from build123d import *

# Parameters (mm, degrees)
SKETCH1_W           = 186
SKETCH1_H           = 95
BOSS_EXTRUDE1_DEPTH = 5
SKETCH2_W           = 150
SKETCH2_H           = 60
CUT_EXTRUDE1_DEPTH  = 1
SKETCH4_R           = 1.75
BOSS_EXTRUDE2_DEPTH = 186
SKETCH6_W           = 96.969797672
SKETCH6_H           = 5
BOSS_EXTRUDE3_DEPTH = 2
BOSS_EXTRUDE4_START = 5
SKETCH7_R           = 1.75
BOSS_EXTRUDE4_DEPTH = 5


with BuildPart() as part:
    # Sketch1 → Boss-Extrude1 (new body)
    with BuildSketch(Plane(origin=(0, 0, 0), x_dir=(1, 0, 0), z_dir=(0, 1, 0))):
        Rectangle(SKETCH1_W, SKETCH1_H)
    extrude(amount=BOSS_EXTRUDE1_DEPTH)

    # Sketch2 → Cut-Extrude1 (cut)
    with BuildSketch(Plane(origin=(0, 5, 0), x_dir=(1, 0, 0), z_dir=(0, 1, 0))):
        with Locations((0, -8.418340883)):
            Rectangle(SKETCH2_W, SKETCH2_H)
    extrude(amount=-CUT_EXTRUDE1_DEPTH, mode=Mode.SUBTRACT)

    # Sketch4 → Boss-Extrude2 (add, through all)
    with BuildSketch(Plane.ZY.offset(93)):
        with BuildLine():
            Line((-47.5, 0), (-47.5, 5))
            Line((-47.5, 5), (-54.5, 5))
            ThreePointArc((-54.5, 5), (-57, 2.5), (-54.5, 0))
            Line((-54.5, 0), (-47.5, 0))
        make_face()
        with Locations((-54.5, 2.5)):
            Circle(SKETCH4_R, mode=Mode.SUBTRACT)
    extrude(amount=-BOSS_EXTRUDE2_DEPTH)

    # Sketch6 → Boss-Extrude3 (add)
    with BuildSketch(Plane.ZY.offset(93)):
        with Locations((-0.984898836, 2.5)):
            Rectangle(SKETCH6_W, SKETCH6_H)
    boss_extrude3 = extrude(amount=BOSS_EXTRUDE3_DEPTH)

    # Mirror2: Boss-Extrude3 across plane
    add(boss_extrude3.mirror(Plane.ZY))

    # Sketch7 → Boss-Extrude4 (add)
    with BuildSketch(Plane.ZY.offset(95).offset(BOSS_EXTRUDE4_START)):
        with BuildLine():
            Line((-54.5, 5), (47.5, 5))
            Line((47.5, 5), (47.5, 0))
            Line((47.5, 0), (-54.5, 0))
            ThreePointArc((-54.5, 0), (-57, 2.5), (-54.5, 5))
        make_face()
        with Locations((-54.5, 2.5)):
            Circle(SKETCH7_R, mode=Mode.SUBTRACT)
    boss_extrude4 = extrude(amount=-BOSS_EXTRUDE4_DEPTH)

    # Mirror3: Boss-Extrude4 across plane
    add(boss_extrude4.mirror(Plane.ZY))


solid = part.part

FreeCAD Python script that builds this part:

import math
import FreeCAD as App
import Part
import Sketcher

V = App.Vector


def add_polygon(sketch, points):
    """Adds a closed chain of lines whose ends are joined by coincident constraints."""
    first, n = sketch.GeometryCount, len(points)
    for a, b in zip(points, points[1:] + points[:1]):
        sketch.addGeometry(Part.LineSegment(App.Vector(*a, 0), App.Vector(*b, 0)), False)
    for i in range(n):
        sketch.addConstraint(Sketcher.Constraint("Coincident", first + i, 2, first + (i + 1) % n, 1))

doc = App.newDocument("Part")
body = doc.addObject("PartDesign::Body", "Body")

# Sketch on XZ plane
sketch1 = body.newObject("Sketcher::SketchObject", "Sketch")
sketch1.AttachmentSupport = (doc.getObject("XZ_Plane"), [""])
sketch1.MapMode = "FlatFace"
add_polygon(sketch1, [(-93, -48), (-93, 48), (93, 48), (93, -48)])  # lines 0-3
sketch1.addConstraint([
    Sketcher.Constraint("Vertical", 0),
    Sketcher.Constraint("Horizontal", 1),
    Sketcher.Constraint("Vertical", 2),
    Sketcher.Constraint("Horizontal", 3),
    Sketcher.Constraint("Symmetric", 0, 2, 2, 2, -1, 1),
    Sketcher.Constraint("DistanceX", 1, 1, 1, 2, 186.0),
    Sketcher.Constraint("DistanceY", 0, 1, 0, 2, 95.0),
])
pad1 = body.newObject("PartDesign::Pad", "Pad")
pad1.Profile = sketch1
pad1.Length = 5
pad1.Reversed = True

# Sketch on XZ plane
sketch2 = body.newObject("Sketcher::SketchObject", "Sketch001")
sketch2.AttachmentSupport = (doc.getObject("XZ_Plane"), [""])
sketch2.MapMode = "FlatFace"
sketch2.AttachmentOffset = App.Placement(V(0, 0, -5), App.Rotation())
add_polygon(sketch2, [(-75, -22), (-75, 38), (75, 38), (75, -22)])  # lines 0-3
sketch2.addConstraint([
    Sketcher.Constraint("Vertical", 0),
    Sketcher.Constraint("Horizontal", 1),
    Sketcher.Constraint("Vertical", 2),
    Sketcher.Constraint("Horizontal", 3),
    Sketcher.Constraint("DistanceX", 1, 1, 1, 2, 150.0),
    Sketcher.Constraint("DistanceY", 0, 1, 0, 2, 60.0),
    Sketcher.Constraint("DistanceX", 0, 2, -1, 1, 75.0),
    Sketcher.Constraint("DistanceY", -1, 1, 0, 2, 38.418341),
])
pocket1 = body.newObject("PartDesign::Pocket", "Pocket")
pocket1.Profile = sketch2
pocket1.Length = 1
pocket1.Reversed = True

# Sketch on YZ plane
sketch3 = body.newObject("Sketcher::SketchObject", "Sketch002")
sketch3.AttachmentSupport = (doc.getObject("YZ_Plane"), [""])
sketch3.MapMode = "FlatFace"
sketch3.AttachmentOffset = App.Placement(V(0, 0, -93), App.Rotation())
sketch3.addGeometry([
    Part.LineSegment(V(0, -47.5, 0), V(5, -47.5, 0)),  # 0
    Part.LineSegment(V(5, -47.5, 0), V(5, -54.5, 0)),  # 1
    Part.ArcOfCircle(Part.Circle(V(2.5, -54.5, 0), V(0, 0, 1), 2.5), math.radians(180), math.radians(360)),  # 2
    Part.LineSegment(V(0, -54.5, 0), V(0, -47.5, 0)),  # 3
    Part.Circle(V(2.5, -54.5, 0), V(0, 0, 1), 1.8),  # 4
], False)
sketch3.addConstraint([
    Sketcher.Constraint("Coincident", 0, 2, 1, 1),
    Sketcher.Constraint("Tangent", 1, 2, 2, 2),
    Sketcher.Constraint("Tangent", 2, 1, 3, 1),
    Sketcher.Constraint("Coincident", 3, 2, 0, 1),
    Sketcher.Constraint("Horizontal", 0),
    Sketcher.Constraint("Vertical", 1),
    Sketcher.Constraint("Vertical", 3),
    Sketcher.Constraint("Coincident", 4, 3, 2, 3),
    Sketcher.Constraint("PointOnObject", 2, 1, -2),
    Sketcher.Constraint("Diameter", 4, 3.5),
    Sketcher.Constraint("Radius", 2, 2.5),
    Sketcher.Constraint("DistanceY", 1, 2, 1, 1, 7.0),
    Sketcher.Constraint("DistanceY", 2, 3, -1, 1, 54.5),
])
pad2 = body.newObject("PartDesign::Pad", "Pad001")
pad2.Profile = sketch3
pad2.Length = 186

# Sketch on YZ plane
sketch4 = body.newObject("Sketcher::SketchObject", "Sketch003")
sketch4.AttachmentSupport = (doc.getObject("YZ_Plane"), [""])
sketch4.MapMode = "FlatFace"
sketch4.AttachmentOffset = App.Placement(V(0, 0, -93), App.Rotation())
add_polygon(sketch4, [(5, -49), (0, -49), (0, 48), (5, 48)])  # lines 0-3
sketch4.addConstraint([
    Sketcher.Constraint("Horizontal", 0),
    Sketcher.Constraint("Vertical", 1),
    Sketcher.Constraint("Horizontal", 2),
    Sketcher.Constraint("Vertical", 3),
    Sketcher.Constraint("PointOnObject", 0, 2, -2),
    Sketcher.Constraint("DistanceX", 0, 2, 0, 1, 5.0),
    Sketcher.Constraint("DistanceY", -1, 1, 1, 2, 47.5),
    Sketcher.Constraint("DistanceY", 1, 1, 1, 2, 96.969798),
])
pad3 = body.newObject("PartDesign::Pad", "Pad002")
pad3.Profile = sketch4
pad3.Length = 2
pad3.Reversed = True
doc.recompute()

mirrored = body.newObject("PartDesign::Mirrored", "Mirrored")
mirrored.Originals = [pad3]
mirrored.MirrorPlane = (doc.getObject("YZ_Plane"), [""])
body.Tip = mirrored

# Sketch on YZ plane
sketch5 = body.newObject("Sketcher::SketchObject", "Sketch004")
sketch5.AttachmentSupport = (doc.getObject("YZ_Plane"), [""])
sketch5.MapMode = "FlatFace"
sketch5.AttachmentOffset = App.Placement(V(0, 0, -100), App.Rotation())
sketch5.addGeometry([
    Part.LineSegment(V(5, 47.5, 0), V(5, -54.5, 0)),  # 0
    Part.ArcOfCircle(Part.Circle(V(2.5, -54.5, 0), V(0, 0, 1), 2.5), math.radians(180), math.radians(360)),  # 1
    Part.LineSegment(V(0, -54.5, 0), V(0, 47.5, 0)),  # 2
    Part.LineSegment(V(0, 47.5, 0), V(5, 47.5, 0)),  # 3
    Part.Circle(V(2.5, -54.5, 0), V(0, 0, 1), 1.8),  # 4
], False)
sketch5.addConstraint([
    Sketcher.Constraint("Tangent", 0, 2, 1, 2),
    Sketcher.Constraint("Tangent", 1, 1, 2, 1),
    Sketcher.Constraint("Coincident", 2, 2, 3, 1),
    Sketcher.Constraint("Coincident", 3, 2, 0, 1),
    Sketcher.Constraint("Vertical", 0),
    Sketcher.Constraint("Vertical", 2),
    Sketcher.Constraint("Horizontal", 3),
    Sketcher.Constraint("Coincident", 4, 3, 1, 3),
    Sketcher.Constraint("PointOnObject", 1, 1, -2),
    Sketcher.Constraint("Diameter", 4, 3.5),
    Sketcher.Constraint("Radius", 1, 2.5),
    Sketcher.Constraint("DistanceY", 0, 2, 0, 1, 102.0),
    Sketcher.Constraint("DistanceY", 1, 3, -1, 1, 54.5),
])
pad4 = body.newObject("PartDesign::Pad", "Pad003")
pad4.Profile = sketch5
pad4.Length = 5
doc.recompute()

mirrored2 = body.newObject("PartDesign::Mirrored", "Mirrored001")
mirrored2.Originals = [pad4]
mirrored2.MirrorPlane = (doc.getObject("YZ_Plane"), [""])
body.Tip = mirrored2

doc.recompute()
